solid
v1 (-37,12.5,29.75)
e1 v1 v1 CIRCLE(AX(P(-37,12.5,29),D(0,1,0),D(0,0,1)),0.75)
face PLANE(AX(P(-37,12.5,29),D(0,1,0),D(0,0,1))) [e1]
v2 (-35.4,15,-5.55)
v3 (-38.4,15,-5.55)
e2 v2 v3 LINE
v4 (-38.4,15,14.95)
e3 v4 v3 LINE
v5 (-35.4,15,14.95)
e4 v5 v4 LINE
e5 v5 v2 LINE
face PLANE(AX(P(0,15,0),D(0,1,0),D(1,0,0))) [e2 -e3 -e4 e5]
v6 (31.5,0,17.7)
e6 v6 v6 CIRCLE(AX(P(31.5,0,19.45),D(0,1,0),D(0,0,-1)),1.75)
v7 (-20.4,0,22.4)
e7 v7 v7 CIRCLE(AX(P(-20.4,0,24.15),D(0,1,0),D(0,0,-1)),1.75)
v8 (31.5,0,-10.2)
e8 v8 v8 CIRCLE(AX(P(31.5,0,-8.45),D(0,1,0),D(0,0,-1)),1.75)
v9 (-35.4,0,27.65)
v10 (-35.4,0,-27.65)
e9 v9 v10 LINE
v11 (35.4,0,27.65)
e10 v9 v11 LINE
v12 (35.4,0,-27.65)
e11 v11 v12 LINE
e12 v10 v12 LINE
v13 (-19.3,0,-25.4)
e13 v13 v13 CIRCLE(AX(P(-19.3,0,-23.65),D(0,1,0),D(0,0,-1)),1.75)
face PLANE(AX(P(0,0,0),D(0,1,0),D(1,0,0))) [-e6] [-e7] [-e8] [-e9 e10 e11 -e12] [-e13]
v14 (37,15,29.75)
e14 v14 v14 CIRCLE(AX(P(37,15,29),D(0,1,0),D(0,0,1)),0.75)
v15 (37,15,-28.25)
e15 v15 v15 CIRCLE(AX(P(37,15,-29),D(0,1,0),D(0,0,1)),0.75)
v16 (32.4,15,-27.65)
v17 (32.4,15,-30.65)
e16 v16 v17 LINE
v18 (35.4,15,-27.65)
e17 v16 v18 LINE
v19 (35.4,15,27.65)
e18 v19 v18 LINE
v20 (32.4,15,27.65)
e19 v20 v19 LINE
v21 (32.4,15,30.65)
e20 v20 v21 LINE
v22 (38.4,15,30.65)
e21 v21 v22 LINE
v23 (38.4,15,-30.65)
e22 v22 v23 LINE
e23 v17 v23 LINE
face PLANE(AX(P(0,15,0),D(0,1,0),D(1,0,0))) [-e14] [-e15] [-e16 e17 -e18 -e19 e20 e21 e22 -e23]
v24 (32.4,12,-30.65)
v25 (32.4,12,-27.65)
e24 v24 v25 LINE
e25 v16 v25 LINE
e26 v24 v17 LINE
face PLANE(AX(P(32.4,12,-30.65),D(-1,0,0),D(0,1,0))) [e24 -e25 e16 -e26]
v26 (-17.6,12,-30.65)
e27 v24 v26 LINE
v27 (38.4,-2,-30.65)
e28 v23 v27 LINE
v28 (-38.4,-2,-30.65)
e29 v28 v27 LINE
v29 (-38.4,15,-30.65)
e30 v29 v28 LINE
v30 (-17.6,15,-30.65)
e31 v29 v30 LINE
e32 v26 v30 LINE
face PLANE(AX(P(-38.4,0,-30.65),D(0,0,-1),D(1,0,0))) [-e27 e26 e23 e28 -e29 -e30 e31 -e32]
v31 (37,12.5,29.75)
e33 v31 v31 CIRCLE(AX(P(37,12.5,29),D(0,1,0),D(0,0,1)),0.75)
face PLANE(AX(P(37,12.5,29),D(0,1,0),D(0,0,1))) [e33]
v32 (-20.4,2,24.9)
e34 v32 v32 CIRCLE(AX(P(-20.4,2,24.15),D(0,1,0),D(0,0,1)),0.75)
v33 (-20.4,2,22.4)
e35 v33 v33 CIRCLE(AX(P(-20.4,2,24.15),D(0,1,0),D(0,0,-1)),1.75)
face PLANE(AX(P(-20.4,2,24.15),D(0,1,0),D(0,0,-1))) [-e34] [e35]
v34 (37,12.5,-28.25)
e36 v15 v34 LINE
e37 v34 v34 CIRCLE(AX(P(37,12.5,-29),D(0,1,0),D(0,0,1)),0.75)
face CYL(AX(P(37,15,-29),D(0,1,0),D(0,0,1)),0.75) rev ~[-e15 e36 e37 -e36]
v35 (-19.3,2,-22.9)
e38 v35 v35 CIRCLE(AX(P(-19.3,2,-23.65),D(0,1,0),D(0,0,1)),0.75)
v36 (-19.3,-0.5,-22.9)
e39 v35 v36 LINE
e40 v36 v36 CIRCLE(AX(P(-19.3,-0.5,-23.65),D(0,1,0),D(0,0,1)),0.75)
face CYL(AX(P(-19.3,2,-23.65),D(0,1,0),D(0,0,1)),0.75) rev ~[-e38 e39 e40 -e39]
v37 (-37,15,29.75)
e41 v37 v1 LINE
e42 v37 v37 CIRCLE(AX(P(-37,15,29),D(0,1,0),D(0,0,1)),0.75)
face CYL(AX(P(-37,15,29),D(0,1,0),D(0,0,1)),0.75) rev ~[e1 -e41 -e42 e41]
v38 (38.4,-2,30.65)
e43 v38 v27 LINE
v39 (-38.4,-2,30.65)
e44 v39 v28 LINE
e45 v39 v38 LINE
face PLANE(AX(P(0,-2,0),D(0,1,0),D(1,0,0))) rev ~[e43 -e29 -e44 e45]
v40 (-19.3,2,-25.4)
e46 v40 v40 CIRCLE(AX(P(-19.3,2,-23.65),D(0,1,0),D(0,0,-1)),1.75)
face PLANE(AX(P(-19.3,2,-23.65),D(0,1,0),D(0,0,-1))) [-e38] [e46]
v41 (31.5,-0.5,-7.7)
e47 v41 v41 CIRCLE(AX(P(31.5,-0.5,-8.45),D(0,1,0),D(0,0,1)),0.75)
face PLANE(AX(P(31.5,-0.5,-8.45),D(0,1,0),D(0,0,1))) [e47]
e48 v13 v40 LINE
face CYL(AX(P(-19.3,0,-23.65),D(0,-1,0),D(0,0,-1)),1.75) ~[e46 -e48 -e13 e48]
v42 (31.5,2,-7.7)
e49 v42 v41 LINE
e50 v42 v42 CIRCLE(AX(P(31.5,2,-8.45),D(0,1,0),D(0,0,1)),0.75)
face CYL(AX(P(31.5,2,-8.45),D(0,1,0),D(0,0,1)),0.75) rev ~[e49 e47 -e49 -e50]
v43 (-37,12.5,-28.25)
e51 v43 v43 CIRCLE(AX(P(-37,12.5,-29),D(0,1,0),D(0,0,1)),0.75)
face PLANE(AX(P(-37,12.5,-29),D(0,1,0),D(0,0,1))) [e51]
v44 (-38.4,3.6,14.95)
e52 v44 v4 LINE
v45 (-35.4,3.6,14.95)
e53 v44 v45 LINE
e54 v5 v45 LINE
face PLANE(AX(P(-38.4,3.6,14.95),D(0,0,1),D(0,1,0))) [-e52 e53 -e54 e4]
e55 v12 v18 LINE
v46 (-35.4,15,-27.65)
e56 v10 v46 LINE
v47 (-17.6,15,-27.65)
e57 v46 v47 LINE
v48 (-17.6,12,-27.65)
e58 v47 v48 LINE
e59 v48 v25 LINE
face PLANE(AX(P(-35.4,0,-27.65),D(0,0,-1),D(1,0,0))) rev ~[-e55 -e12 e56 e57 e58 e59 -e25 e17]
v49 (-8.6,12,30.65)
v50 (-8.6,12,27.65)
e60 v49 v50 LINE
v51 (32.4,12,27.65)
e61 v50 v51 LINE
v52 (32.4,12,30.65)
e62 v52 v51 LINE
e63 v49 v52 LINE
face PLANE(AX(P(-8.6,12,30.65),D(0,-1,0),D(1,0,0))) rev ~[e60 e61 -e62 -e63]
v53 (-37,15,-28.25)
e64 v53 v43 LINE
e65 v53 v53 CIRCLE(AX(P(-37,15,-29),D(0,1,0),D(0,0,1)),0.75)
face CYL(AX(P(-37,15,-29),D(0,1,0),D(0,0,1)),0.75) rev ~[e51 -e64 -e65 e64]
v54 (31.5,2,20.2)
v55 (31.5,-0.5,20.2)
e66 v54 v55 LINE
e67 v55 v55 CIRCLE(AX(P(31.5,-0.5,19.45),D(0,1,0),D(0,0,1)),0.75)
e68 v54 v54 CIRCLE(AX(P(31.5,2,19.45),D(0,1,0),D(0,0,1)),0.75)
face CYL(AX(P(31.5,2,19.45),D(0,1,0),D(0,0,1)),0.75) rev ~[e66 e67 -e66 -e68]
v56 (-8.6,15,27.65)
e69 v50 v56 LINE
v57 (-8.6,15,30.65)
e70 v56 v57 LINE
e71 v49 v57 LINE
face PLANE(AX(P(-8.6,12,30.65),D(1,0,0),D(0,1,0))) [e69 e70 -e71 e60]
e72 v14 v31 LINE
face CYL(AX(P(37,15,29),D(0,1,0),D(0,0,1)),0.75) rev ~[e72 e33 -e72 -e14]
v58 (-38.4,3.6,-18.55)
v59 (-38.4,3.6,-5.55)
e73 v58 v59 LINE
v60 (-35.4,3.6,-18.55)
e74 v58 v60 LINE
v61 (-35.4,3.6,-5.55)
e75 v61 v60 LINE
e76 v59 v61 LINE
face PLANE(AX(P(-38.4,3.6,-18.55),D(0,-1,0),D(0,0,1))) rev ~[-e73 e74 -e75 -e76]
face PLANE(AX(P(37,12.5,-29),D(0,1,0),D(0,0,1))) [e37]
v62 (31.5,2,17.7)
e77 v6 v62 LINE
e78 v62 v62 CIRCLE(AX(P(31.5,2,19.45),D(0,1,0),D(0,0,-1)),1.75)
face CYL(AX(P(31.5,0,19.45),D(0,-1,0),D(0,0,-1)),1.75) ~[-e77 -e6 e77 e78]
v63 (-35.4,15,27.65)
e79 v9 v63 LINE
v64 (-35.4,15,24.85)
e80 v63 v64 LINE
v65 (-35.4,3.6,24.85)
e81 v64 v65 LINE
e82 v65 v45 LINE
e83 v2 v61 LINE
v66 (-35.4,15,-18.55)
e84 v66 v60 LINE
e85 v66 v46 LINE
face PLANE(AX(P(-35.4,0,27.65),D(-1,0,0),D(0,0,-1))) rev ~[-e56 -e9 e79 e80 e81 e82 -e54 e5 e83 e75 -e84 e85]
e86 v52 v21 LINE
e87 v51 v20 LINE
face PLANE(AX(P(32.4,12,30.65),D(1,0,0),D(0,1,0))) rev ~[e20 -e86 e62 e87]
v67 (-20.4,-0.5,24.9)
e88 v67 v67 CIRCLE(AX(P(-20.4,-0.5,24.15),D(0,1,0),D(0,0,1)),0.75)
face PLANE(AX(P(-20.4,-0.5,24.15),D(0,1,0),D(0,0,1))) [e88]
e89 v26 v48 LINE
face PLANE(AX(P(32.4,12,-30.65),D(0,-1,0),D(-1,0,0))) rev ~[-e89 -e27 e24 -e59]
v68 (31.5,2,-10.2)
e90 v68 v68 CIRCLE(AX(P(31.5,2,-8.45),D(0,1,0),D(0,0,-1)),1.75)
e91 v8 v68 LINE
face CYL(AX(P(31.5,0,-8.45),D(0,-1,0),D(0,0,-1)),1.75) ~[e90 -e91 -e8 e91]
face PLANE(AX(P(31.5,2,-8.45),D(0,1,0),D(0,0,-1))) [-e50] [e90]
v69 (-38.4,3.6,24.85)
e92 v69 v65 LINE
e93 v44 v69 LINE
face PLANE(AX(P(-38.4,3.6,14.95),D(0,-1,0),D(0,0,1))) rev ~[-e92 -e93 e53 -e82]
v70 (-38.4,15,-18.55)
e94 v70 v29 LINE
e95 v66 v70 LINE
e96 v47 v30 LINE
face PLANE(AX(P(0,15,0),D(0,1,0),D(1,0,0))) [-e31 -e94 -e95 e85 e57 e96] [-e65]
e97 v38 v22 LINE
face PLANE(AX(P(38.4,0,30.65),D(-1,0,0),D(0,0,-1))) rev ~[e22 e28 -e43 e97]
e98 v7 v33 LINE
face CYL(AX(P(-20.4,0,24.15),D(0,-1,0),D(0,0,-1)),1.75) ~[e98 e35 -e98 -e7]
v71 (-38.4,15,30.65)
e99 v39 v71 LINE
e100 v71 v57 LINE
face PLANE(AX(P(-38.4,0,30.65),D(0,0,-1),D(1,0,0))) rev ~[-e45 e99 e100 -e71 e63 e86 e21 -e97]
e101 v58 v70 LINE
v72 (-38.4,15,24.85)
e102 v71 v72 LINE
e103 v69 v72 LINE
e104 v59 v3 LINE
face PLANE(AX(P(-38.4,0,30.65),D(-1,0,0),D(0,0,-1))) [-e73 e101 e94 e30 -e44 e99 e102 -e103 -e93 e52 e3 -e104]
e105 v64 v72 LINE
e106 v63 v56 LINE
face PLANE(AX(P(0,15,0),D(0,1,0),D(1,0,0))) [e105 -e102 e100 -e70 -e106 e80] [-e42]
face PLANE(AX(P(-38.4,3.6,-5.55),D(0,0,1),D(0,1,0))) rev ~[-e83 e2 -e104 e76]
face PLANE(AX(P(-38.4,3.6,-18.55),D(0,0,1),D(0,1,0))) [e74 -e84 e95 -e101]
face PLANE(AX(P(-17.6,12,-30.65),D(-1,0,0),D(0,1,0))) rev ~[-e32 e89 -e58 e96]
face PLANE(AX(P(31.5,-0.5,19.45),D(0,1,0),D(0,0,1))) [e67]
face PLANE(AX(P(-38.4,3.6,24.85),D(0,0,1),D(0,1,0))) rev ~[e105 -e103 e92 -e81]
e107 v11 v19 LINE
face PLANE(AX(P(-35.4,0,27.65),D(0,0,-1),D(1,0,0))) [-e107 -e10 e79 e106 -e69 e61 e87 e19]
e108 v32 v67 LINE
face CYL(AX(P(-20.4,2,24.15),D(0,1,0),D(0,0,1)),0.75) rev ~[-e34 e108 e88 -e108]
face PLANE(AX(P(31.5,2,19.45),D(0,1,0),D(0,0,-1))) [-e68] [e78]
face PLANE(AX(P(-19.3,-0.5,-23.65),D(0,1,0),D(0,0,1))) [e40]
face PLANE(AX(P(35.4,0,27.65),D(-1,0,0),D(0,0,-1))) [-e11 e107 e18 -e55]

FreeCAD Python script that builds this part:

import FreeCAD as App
import Part
import Sketcher

V = App.Vector
Q = App.Units.Quantity

doc = App.newDocument("Part")
body = doc.addObject("PartDesign::Body", "Body")

# Sketch on XZ plane
sketch1 = doc.addObject("Sketcher::SketchObject", "Sketch")
body.addObject(sketch1)
sketch1.AttachmentSupport = (doc.XZ_Plane, [""])
sketch1.MapMode = "FlatFace"
sketch1.addGeometry([
    Part.LineSegment(V(-38, -31, 0), V(-38, 31, 0)),
    Part.LineSegment(V(-38, 31, 0), V(38, 31, 0)),
    Part.LineSegment(V(38, 31, 0), V(38, -31, 0)),
    Part.LineSegment(V(38, -31, 0), V(-38, -31, 0)),
], False)
sketch1.addConstraint([
    Sketcher.Constraint("Coincident", 0, 2, 1, 1),
    Sketcher.Constraint("Coincident", 1, 2, 2, 1),
    Sketcher.Constraint("Coincident", 2, 2, 3, 1),
    Sketcher.Constraint("Coincident", 3, 2, 0, 1),
    Sketcher.Constraint("Vertical", 0),
    Sketcher.Constraint("Horizontal", 1),
    Sketcher.Constraint("Vertical", 2),
    Sketcher.Constraint("Horizontal", 3),
    Sketcher.Constraint("Symmetric", 0, 2, 2, 2, -1, 1),
    Sketcher.Constraint("DistanceX", 1, 1, 1, 2, Q("76.8 mm")),
    Sketcher.Constraint("DistanceY", 0, 1, 0, 2, Q("61.3 mm")),
])
pad1 = doc.addObject("PartDesign::Pad", "Pad")
body.addObject(pad1)
pad1.Profile = sketch1
pad1.Length = 2

# Sketch on XZ plane
sketch2 = doc.addObject("Sketcher::SketchObject", "Sketch001")
body.addObject(sketch2)
sketch2.AttachmentSupport = (doc.XZ_Plane, [""])
sketch2.MapMode = "FlatFace"
sketch2.addGeometry([
    Part.LineSegment(V(-38, -31, 0), V(-38, 31, 0)),  # 0
    Part.LineSegment(V(-38, 31, 0), V(38, 31, 0)),  # 1
    Part.LineSegment(V(38, 31, 0), V(38, -31, 0)),  # 2
    Part.LineSegment(V(38, -31, 0), V(-38, -31, 0)),  # 3
    Part.LineSegment(V(35, 28, 0), V(-35, 28, 0)),  # 4
    Part.LineSegment(V(-35, 28, 0), V(-35, -28, 0)),  # 5
    Part.LineSegment(V(-35, -28, 0), V(35, -28, 0)),  # 6
    Part.LineSegment(V(35, -28, 0), V(35, 28, 0)),  # 7
], False)
sketch2.addConstraint([
    Sketcher.Constraint("Coincident", 0, 2, 1, 1),
    Sketcher.Constraint("Coincident", 1, 2, 2, 1),
    Sketcher.Constraint("Coincident", 2, 2, 3, 1),
    Sketcher.Constraint("Coincident", 3, 2, 0, 1),
    Sketcher.Constraint("Coincident", 4, 2, 5, 1),
    Sketcher.Constraint("Coincident", 5, 2, 6, 1),
    Sketcher.Constraint("Coincident", 6, 2, 7, 1),
    Sketcher.Constraint("Coincident", 7, 2, 4, 1),
    Sketcher.Constraint("Vertical", 0),
    Sketcher.Constraint("Horizontal", 1),
    Sketcher.Constraint("Vertical", 2),
    Sketcher.Constraint("Horizontal", 3),
    Sketcher.Constraint("Horizontal", 4),
    Sketcher.Constraint("Vertical", 5),
    Sketcher.Constraint("Horizontal", 6),
    Sketcher.Constraint("Vertical", 7),
    Sketcher.Constraint("Symmetric", 0, 2, 2, 2, -1, 1),
    Sketcher.Constraint("Symmetric", 4, 2, 6, 2, -1, 1),
    Sketcher.Constraint("DistanceX", 1, 1, 1, 2, Q("76.8 mm")),
    Sketcher.Constraint("DistanceX", 4, 2, 4, 1, Q("70.8 mm")),
    Sketcher.Constraint("DistanceY", 0, 1, 0, 2, Q("61.3 mm")),
    Sketcher.Constraint("DistanceY", 5, 2, 5, 1, Q("55.3 mm")),
])
pad2 = doc.addObject("PartDesign::Pad", "Pad001")
body.addObject(pad2)
pad2.Profile = sketch2
pad2.Length = 15
pad2.Reversed = True

# Sketch on YZ plane
sketch3 = doc.addObject("Sketcher::SketchObject", "Sketch002")
body.addObject(sketch3)
sketch3.AttachmentSupport = (doc.YZ_Plane, [""])
sketch3.MapMode = "FlatFace"
sketch3.AttachmentOffset = App.Placement(V(0, 0, -38.4), App.Rotation())
sketch3.addGeometry([
    Part.LineSegment(V(18, -19, 0), V(4, -19, 0)),
    Part.LineSegment(V(4, -19, 0), V(4, -6, 0)),
    Part.LineSegment(V(4, -6, 0), V(18, -6, 0)),
    Part.LineSegment(V(18, -6, 0), V(18, -19, 0)),
], False)
sketch3.addConstraint([
    Sketcher.Constraint("Coincident", 0, 2, 1, 1),
    Sketcher.Constraint("Coincident", 1, 2, 2, 1),
    Sketcher.Constraint("Coincident", 2, 2, 3, 1),
    Sketcher.Constraint("Coincident", 3, 2, 0, 1),
    Sketcher.Constraint("Horizontal", 0),
    Sketcher.Constraint("Vertical", 1),
    Sketcher.Constraint("Horizontal", 2),
    Sketcher.Constraint("Vertical", 3),
    Sketcher.Constraint("DistanceY", 1, 1, 1, 2, Q("13 mm")),
    Sketcher.Constraint("DistanceX", -1, 1, 0, 2, Q("3.6 mm")),
    Sketcher.Constraint("DistanceY", 0, 2, -1, 1, Q("18.55 mm")),
    Sketcher.Constraint("DistanceX", 0, 2, 0, 1, Q("14.670743 mm")),
])
pocket1 = doc.addObject("PartDesign::Pocket", "Pocket")
body.addObject(pocket1)
pocket1.Profile = sketch3
pocket1.Type = "UpToFirst"
pocket1.Reversed = True

# Sketch on YZ plane
sketch4 = doc.addObject("Sketcher::SketchObject", "Sketch003")
body.addObject(sketch4)
sketch4.AttachmentSupport = (doc.YZ_Plane, [""])
sketch4.MapMode = "FlatFace"
sketch4.AttachmentOffset = App.Placement(V(0, 0, -38.4), App.Rotation())
sketch4.addGeometry([
    Part.LineSegment(V(15, 15, 0), V(4, 15, 0)),
    Part.LineSegment(V(4, 15, 0), V(4, 25, 0)),
    Part.LineSegment(V(4, 25, 0), V(15, 25, 0)),
    Part.LineSegment(V(15, 25, 0), V(15, 15, 0)),
], False)
sketch4.addConstraint([
    Sketcher.Constraint("Coincident", 0, 2, 1, 1),
    Sketcher.Constraint("Coincident", 1, 2, 2, 1),
    Sketcher.Constraint("Coincident", 2, 2, 3, 1),
    Sketcher.Constraint("Coincident", 3, 2, 0, 1),
    Sketcher.Constraint("Horizontal", 0),
    Sketcher.Constraint("Vertical", 1),
    Sketcher.Constraint("Horizontal", 2),
    Sketcher.Constraint("Vertical", 3),
    Sketcher.Constraint("DistanceY", 1, 1, 1, 2, Q("9.9 mm")),
    Sketcher.Constraint("DistanceX", -1, 1, 0, 2, Q("3.6 mm")),
    Sketcher.Constraint("DistanceY", -1, 1, 0, 2, Q("14.95 mm")),
    Sketcher.Constraint("DistanceX", 0, 2, 0, 1, Q("11.743699 mm")),
])
pocket2 = doc.addObject("PartDesign::Pocket", "Pocket001")
body.addObject(pocket2)
pocket2.Profile = sketch4
pocket2.Type = "UpToFirst"
pocket2.Reversed = True

# Sketch on XY plane
sketch5 = doc.addObject("Sketcher::SketchObject", "Sketch004")
body.addObject(sketch5)
sketch5.AttachmentSupport = (doc.XY_Plane, [""])
sketch5.MapMode = "FlatFace"
sketch5.AttachmentOffset = App.Placement(V(0, 0, 30.65), App.Rotation())
sketch5.addGeometry([
    Part.LineSegment(V(-9, 23, 0), V(-9, 12, 0)),
    Part.LineSegment(V(-9, 12, 0), V(32, 12, 0)),
    Part.LineSegment(V(32, 12, 0), V(32, 23, 0)),
    Part.LineSegment(V(32, 23, 0), V(-9, 23, 0)),
], False)
sketch5.addConstraint([
    Sketcher.Constraint("Coincident", 0, 2, 1, 1),
    Sketcher.Constraint("Coincident", 1, 2, 2, 1),
    Sketcher.Constraint("Coincident", 2, 2, 3, 1),
    Sketcher.Constraint("Coincident", 3, 2, 0, 1),
    Sketcher.Constraint("Vertical", 0),
    Sketcher.Constraint("Horizontal", 1),
    Sketcher.Constraint("Vertical", 2),
    Sketcher.Constraint("Horizontal", 3),
    Sketcher.Constraint("DistanceX", 1, 1, 1, 2, Q("41 mm")),
    Sketcher.Constraint("DistanceY", -1, 1, 0, 2, Q("12 mm")),
    Sketcher.Constraint("DistanceX", 0, 2, -1, 1, Q("8.6 mm")),
    Sketcher.Constraint("DistanceY", 0, 2, 0, 1, Q("11.477298 mm")),
])
pocket3 = doc.addObject("PartDesign::Pocket", "Pocket002")
body.addObject(pocket3)
pocket3.Profile = sketch5
pocket3.Length = 3

# Sketch on XY plane
sketch6 = doc.addObject("Sketcher::SketchObject", "Sketch005")
body.addObject(sketch6)
sketch6.AttachmentSupport = (doc.XY_Plane, [""])
sketch6.MapMode = "FlatFace"
sketch6.AttachmentOffset = App.Placement(V(0, 0, -30.65), App.Rotation())
sketch6.addGeometry([
    Part.LineSegment(V(32, 26, 0), V(32, 12, 0)),
    Part.LineSegment(V(32, 12, 0), V(-18, 12, 0)),
    Part.LineSegment(V(-18, 12, 0), V(-18, 26, 0)),
    Part.LineSegment(V(-18, 26, 0), V(32, 26, 0)),
], False)
sketch6.addConstraint([
    Sketcher.Constraint("Coincident", 0, 2, 1, 1),
    Sketcher.Constraint("Coincident", 1, 2, 2, 1),
    Sketcher.Constraint("Coincident", 2, 2, 3, 1),
    Sketcher.Constraint("Coincident", 3, 2, 0, 1),
    Sketcher.Constraint("Vertical", 0),
    Sketcher.Constraint("Horizontal", 1),
    Sketcher.Constraint("Vertical", 2),
    Sketcher.Constraint("Horizontal", 3),
    Sketcher.Constraint("DistanceX", 1, 2, 1, 1, Q("50 mm")),
    Sketcher.Constraint("DistanceY", -1, 1, 0, 2, Q("12 mm")),
    Sketcher.Constraint("DistanceX", -1, 1, 0, 2, Q("32.4 mm")),
    Sketcher.Constraint("DistanceY", 0, 2, 0, 1, Q("13.639688 mm")),
])
pocket4 = doc.addObject("PartDesign::Pocket", "Pocket003")
body.addObject(pocket4)
pocket4.Profile = sketch6
pocket4.Length = 3
pocket4.Reversed = True

# Sketch on XZ plane
sketch7 = doc.addObject("Sketcher::SketchObject", "Sketch006")
body.addObject(sketch7)
sketch7.AttachmentSupport = (doc.XZ_Plane, [""])
sketch7.MapMode = "FlatFace"
sketch7.addGeometry([
    Part.Circle(V(-19.3, -23.6, 0), V(0, 0, 1), 1.8),
    Part.Circle(V(-20.4, 24.1, 0), V(0, 0, 1), 1.8),
    Part.Circle(V(31.5, -8.4, 0), V(0, 0, 1), 1.8),
    Part.Circle(V(31.5, 19.4, 0), V(0, 0, 1), 1.8),
], False)
sketch7.addConstraint([
    Sketcher.Constraint("Equal", 0, 1),
    Sketcher.Constraint("Equal", 1, 2),
    Sketcher.Constraint("Equal", 2, 3),
    Sketcher.Constraint("Vertical", 2, 3, 3, 3),
    Sketcher.Constraint("Diameter", 0, Q("3.5 mm")),
    Sketcher.Constraint("DistanceX", 0, 3, -1, 1, Q("19.3 mm")),
    Sketcher.Constraint("DistanceX", 1, 3, -1, 1, Q("20.4 mm")),
    Sketcher.Constraint("DistanceX", -1, 1, 2, 3, Q("31.5 mm")),
    Sketcher.Constraint("DistanceY", 0, 3, 1, 3, Q("47.8 mm")),
    Sketcher.Constraint("DistanceY", 0, 3, 2, 3, Q("15.2 mm")),
    Sketcher.Constraint("DistanceY", 2, 3, 3, 3, Q("27.9 mm")),
    Sketcher.Constraint("DistanceY", 0, 3, -1, 1, Q("23.65 mm")),
])
pad3 = doc.addObject("PartDesign::Pad", "Pad002")
body.addObject(pad3)
pad3.Profile = sketch7
pad3.Length = 2
pad3.Reversed = True

# Sketch on XZ plane
sketch8 = doc.addObject("Sketcher::SketchObject", "Sketch007")
body.addObject(sketch8)
sketch8.AttachmentSupport = (doc.XZ_Plane, [""])
sketch8.MapMode = "FlatFace"
sketch8.AttachmentOffset = App.Placement(V(0, 0, -2), App.Rotation())
sketch8.addGeometry([
    Part.Circle(V(-19.3, -23.6, 0), V(0, 0, 1), 0.8),
    Part.Circle(V(-20.4, 24.1, 0), V(0, 0, 1), 0.8),
    Part.Circle(V(31.5, -8.4, 0), V(0, 0, 1), 0.8),
    Part.Circle(V(31.5, 19.4, 0), V(0, 0, 1), 0.8),
], False)
sketch8.addConstraint([
    Sketcher.Constraint("Equal", 0, 1),
    Sketcher.Constraint("Equal", 1, 2),
    Sketcher.Constraint("Equal", 2, 3),
    Sketcher.Constraint("Vertical", 2, 3, 3, 3),
    Sketcher.Constraint("Diameter", 0, Q("1.5 mm")),
    Sketcher.Constraint("DistanceX", 0, 3, -1, 1, Q("19.3 mm")),
    Sketcher.Constraint("DistanceX", 1, 3, -1, 1, Q("20.4 mm")),
    Sketcher.Constraint("DistanceX", -1, 1, 2, 3, Q("31.5 mm")),
    Sketcher.Constraint("DistanceY", 0, 3, 1, 3, Q("47.8 mm")),
    Sketcher.Constraint("DistanceY", 0, 3, 2, 3, Q("15.2 mm")),
    Sketcher.Constraint("DistanceY", 2, 3, 3, 3, Q("27.9 mm")),
    Sketcher.Constraint("DistanceY", 0, 3, -1, 1, Q("23.65 mm")),
])
pocket5 = doc.addObject("PartDesign::Pocket", "Pocket004")
body.addObject(pocket5)
pocket5.Profile = sketch8
pocket5.Length = 2.5
pocket5.Reversed = True

# Sketch on XZ plane
sketch9 = doc.addObject("Sketcher::SketchObject", "Sketch008")
body.addObject(sketch9)
sketch9.AttachmentSupport = (doc.XZ_Plane, [""])
sketch9.MapMode = "FlatFace"
sketch9.AttachmentOffset = App.Placement(V(0, 0, -15), App.Rotation())
sketch9.addGeometry([
    Part.Circle(V(-37, -29, 0), V(0, 0, 1), 0.8),
    Part.Circle(V(37, -29, 0), V(0, 0, 1), 0.8),
    Part.Circle(V(37, 29, 0), V(0, 0, 1), 0.8),
    Part.Circle(V(-37, 29, 0), V(0, 0, 1), 0.8),
], False)
sketch9.addConstraint([
    Sketcher.Constraint("Equal", 0, 1),
    Sketcher.Constraint("Equal", 1, 2),
    Sketcher.Constraint("Equal", 2, 3),
    Sketcher.Constraint("Symmetric", 0, 3, 2, 3, -1, 1),
    Sketcher.Constraint("Symmetric", 1, 3, 3, 3, -1, 1),
    Sketcher.Constraint("Symmetric", 0, 3, 1, 3, -2),
    Sketcher.Constraint("Diameter", 0, Q("1.5 mm")),
    Sketcher.Constraint("DistanceX", 0, 3, -1, 1, Q("37 mm")),
    Sketcher.Constraint("DistanceY", 0, 3, -1, 1, Q("29 mm")),
])
pocket6 = doc.addObject("PartDesign::Pocket", "Pocket005")
body.addObject(pocket6)
pocket6.Profile = sketch9
pocket6.Length = 2.5
pocket6.Reversed = True

doc.recompute()
